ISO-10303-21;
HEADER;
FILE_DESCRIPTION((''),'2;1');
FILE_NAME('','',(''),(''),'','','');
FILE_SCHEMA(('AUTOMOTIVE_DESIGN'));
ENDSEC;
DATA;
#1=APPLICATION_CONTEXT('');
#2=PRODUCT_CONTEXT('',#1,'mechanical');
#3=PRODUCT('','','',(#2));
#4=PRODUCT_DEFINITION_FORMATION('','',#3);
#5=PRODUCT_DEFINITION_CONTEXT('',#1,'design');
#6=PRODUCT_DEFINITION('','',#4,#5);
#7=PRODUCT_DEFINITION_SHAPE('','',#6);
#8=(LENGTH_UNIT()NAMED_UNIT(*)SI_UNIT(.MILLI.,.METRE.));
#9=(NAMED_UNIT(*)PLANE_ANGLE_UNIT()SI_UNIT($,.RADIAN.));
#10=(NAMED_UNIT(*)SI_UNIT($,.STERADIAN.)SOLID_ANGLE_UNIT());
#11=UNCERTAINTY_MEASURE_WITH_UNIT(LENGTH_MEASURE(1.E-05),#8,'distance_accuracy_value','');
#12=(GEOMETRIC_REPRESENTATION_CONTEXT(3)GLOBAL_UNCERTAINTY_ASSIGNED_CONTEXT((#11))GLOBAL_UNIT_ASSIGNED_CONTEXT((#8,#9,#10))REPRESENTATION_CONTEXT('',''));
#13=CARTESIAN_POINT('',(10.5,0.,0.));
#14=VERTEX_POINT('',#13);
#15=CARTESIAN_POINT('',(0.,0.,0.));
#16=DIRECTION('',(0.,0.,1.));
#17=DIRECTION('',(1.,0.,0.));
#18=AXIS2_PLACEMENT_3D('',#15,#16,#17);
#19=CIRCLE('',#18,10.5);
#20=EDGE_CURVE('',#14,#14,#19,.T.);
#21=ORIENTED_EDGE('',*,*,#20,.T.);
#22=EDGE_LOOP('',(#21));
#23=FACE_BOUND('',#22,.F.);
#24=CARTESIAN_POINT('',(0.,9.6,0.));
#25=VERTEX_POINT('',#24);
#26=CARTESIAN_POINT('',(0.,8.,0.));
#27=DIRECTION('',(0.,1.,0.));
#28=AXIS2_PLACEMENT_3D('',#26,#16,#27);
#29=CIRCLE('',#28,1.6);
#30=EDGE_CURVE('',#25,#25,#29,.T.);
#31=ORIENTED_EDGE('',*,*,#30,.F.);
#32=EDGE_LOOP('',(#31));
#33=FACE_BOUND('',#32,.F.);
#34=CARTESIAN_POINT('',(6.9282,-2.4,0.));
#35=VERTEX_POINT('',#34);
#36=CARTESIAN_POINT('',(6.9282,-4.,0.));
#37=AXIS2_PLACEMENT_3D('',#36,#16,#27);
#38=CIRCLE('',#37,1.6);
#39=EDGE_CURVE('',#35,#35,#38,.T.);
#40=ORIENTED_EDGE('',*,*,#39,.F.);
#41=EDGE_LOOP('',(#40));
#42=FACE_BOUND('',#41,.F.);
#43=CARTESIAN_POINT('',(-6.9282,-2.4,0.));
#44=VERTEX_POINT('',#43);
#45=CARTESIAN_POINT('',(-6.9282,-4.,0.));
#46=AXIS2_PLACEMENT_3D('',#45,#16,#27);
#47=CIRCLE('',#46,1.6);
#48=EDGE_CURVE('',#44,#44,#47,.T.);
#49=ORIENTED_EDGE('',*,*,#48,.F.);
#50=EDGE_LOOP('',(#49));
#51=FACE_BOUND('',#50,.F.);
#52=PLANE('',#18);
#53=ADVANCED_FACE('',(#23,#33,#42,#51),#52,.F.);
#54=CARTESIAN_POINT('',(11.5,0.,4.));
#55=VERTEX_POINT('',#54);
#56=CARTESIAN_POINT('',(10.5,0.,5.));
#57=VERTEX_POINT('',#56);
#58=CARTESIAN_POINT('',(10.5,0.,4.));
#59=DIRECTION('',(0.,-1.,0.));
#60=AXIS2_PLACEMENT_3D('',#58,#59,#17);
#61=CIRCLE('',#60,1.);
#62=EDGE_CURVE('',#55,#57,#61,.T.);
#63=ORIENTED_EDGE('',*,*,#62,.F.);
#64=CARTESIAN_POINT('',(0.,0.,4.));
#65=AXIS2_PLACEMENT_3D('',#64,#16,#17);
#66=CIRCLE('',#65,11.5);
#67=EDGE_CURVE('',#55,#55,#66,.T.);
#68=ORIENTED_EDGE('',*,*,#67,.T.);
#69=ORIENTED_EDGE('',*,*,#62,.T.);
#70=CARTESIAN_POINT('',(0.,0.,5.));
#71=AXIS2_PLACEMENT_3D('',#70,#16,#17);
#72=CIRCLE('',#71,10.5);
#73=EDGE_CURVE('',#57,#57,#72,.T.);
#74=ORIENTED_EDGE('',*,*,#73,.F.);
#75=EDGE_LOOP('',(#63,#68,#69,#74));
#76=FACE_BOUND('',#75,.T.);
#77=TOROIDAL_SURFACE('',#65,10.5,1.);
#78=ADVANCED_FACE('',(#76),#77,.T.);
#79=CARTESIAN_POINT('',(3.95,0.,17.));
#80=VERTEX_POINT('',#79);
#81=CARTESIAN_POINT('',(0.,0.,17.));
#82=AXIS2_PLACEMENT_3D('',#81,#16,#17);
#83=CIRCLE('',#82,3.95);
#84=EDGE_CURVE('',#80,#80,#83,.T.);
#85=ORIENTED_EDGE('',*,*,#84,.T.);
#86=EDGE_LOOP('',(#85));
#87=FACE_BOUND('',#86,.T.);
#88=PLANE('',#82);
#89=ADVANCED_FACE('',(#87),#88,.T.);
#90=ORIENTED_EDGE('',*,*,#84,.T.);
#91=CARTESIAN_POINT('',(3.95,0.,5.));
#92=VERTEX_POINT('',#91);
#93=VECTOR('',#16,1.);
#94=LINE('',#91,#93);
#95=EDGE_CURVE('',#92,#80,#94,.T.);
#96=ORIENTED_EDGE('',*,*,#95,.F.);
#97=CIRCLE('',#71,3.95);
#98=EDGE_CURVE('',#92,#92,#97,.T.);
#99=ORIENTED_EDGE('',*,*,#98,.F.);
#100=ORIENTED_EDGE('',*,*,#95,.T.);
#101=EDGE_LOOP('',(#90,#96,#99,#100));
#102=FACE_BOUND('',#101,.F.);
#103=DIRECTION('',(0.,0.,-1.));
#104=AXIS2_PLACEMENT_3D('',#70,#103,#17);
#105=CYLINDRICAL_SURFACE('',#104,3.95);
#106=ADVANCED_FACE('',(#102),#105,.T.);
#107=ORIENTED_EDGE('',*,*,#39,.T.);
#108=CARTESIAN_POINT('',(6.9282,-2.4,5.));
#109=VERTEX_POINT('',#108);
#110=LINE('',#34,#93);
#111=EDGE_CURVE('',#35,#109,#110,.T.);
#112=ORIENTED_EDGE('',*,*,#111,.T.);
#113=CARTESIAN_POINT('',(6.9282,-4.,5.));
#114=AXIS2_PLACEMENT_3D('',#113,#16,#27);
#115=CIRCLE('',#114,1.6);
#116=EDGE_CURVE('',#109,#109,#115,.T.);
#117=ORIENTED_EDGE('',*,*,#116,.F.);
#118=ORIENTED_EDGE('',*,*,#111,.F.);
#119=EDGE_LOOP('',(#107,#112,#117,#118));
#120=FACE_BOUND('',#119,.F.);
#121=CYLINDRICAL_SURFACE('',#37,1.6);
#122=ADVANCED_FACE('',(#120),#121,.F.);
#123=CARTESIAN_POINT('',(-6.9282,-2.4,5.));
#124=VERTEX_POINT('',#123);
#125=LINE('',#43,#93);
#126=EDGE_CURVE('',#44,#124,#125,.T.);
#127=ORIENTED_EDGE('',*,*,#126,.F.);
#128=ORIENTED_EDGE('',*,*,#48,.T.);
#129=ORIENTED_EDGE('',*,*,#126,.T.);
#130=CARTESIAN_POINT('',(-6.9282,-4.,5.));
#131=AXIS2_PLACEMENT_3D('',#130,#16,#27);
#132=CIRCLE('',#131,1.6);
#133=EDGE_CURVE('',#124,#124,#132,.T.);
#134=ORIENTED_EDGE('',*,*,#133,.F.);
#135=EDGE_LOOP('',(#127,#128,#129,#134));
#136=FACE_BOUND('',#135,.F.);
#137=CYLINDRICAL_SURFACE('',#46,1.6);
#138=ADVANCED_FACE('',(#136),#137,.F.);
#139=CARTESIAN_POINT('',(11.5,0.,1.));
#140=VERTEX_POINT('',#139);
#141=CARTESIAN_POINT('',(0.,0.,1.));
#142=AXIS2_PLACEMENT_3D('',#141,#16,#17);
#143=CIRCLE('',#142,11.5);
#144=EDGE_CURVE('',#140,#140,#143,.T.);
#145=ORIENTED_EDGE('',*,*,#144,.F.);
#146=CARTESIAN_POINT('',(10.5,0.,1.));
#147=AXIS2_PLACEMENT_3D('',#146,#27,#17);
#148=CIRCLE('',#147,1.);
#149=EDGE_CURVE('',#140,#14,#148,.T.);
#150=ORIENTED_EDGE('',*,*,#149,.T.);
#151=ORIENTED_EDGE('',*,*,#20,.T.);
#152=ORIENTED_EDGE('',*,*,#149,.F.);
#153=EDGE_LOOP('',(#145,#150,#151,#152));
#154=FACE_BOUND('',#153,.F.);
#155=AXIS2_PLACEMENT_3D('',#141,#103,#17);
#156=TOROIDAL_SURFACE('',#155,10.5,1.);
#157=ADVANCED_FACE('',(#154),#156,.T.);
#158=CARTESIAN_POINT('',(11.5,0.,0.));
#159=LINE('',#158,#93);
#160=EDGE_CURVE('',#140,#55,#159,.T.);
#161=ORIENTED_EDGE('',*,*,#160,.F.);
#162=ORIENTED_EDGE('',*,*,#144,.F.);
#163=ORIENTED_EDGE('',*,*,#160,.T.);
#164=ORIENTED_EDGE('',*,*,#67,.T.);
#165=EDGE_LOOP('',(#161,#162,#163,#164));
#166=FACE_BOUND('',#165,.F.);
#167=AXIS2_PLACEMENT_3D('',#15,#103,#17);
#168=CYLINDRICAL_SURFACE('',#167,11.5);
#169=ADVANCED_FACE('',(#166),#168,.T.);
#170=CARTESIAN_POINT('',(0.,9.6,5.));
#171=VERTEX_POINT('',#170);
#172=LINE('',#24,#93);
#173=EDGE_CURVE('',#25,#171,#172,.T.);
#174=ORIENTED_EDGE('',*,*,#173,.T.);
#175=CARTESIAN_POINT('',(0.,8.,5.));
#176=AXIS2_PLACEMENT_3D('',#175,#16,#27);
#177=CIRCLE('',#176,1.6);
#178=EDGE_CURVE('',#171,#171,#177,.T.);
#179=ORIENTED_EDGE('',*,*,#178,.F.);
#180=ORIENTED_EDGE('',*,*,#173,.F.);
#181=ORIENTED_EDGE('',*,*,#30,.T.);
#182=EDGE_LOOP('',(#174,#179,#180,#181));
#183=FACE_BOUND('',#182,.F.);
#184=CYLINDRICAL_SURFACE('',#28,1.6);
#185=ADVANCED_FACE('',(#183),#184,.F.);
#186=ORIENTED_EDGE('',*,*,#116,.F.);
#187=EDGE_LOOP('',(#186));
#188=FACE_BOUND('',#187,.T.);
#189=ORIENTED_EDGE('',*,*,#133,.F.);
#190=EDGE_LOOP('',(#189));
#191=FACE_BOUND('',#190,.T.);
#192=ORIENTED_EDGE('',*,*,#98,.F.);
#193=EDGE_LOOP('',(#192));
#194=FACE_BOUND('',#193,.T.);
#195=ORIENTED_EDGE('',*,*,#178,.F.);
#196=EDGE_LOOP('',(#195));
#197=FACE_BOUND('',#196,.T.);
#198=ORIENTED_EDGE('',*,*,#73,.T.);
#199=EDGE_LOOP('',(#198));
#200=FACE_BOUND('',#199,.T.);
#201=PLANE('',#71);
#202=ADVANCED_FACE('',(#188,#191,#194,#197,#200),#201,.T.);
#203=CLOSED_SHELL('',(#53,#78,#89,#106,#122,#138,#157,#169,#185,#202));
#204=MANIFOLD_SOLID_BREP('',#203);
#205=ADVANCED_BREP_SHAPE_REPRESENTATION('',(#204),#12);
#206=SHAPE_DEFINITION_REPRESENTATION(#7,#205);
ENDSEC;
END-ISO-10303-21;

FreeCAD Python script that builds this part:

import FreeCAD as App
import Part
import Sketcher


def edges_at(feature, points):
    """Names of the edges that pass closest to the given points."""
    edges = feature.Shape.Edges
    near = lambda p: min(range(len(edges)), key=lambda i: edges[i].distToShape(Part.Vertex(*p))[0])
    return sorted({f"Edge{near(p) + 1}" for p in points})

doc = App.newDocument("Part")
body = doc.addObject("PartDesign::Body", "Body")

# Sketch on XY plane
sketch1 = body.newObject("Sketcher::SketchObject", "Sketch")
sketch1.AttachmentSupport = (doc.getObject("XY_Plane"), [""])
sketch1.MapMode = "FlatFace"
sketch1.addGeometry(Part.Circle(App.Vector(0, 0, 0), App.Vector(0, 0, 1), 12), False)
sketch1.addConstraint([
    Sketcher.Constraint("Coincident", 0, 3, -1, 1),
    Sketcher.Constraint("Diameter", 0, 23.0),
])
pad1 = body.newObject("PartDesign::Pad", "Pad")
pad1.Profile = sketch1
pad1.Length = 5

# Sketch on XY plane
sketch2 = body.newObject("Sketcher::SketchObject", "Sketch001")
sketch2.AttachmentSupport = (doc.getObject("XY_Plane"), [""])
sketch2.MapMode = "FlatFace"
sketch2.AttachmentOffset = App.Placement(App.Vector(0, 0, 5), App.Rotation())
sketch2.addGeometry(Part.Circle(App.Vector(0, 0, 0), App.Vector(0, 0, 1), 4), False)
sketch2.addConstraint([
    Sketcher.Constraint("Coincident", 0, 3, -1, 1),
    Sketcher.Constraint("Diameter", 0, 7.9),
])
pad2 = body.newObject("PartDesign::Pad", "Pad001")
pad2.Profile = sketch2
pad2.Length = 12

# Sketch on XY plane
sketch3 = body.newObject("Sketcher::SketchObject", "Sketch002")
sketch3.AttachmentSupport = (doc.getObject("XY_Plane"), [""])
sketch3.MapMode = "FlatFace"
sketch3.addGeometry([
    Part.Circle(App.Vector(0, 8, 0), App.Vector(0, 0, 1), 1.6),
    Part.Circle(App.Vector(6.9, -4, 0), App.Vector(0, 0, 1), 1.6),
    Part.Circle(App.Vector(-6.9, -4, 0), App.Vector(0, 0, 1), 1.6),
], False)
sketch3.addConstraint([
    Sketcher.Constraint("Equal", 0, 1),
    Sketcher.Constraint("Equal", 1, 2),
    Sketcher.Constraint("Symmetric", 1, 3, 2, 3, -2),
    Sketcher.Constraint("PointOnObject", 0, 3, -2),
    Sketcher.Constraint("Diameter", 0, 3.2),
    Sketcher.Constraint("DistanceY", -1, 1, 0, 3, 8.0),
    Sketcher.Constraint("DistanceY", 1, 3, -1, 1, 4.0),
    Sketcher.Constraint("DistanceX", -1, 1, 1, 3, 6.9282),
])
doc.recompute()
hole = body.newObject("PartDesign::Hole", "Hole")
hole.Profile = sketch3
hole.ThreadType = "None"
hole.Diameter = 3.2
hole.DepthType = "ThroughAll"
hole.Reversed = True
doc.recompute()

fillet = body.newObject("PartDesign::Fillet", "Fillet")
fillet.Base = (hole, edges_at(hole, [(-11.5, 0, 0), (-11.5, 0, 5)]))
fillet.Radius = 1

doc.recompute()
